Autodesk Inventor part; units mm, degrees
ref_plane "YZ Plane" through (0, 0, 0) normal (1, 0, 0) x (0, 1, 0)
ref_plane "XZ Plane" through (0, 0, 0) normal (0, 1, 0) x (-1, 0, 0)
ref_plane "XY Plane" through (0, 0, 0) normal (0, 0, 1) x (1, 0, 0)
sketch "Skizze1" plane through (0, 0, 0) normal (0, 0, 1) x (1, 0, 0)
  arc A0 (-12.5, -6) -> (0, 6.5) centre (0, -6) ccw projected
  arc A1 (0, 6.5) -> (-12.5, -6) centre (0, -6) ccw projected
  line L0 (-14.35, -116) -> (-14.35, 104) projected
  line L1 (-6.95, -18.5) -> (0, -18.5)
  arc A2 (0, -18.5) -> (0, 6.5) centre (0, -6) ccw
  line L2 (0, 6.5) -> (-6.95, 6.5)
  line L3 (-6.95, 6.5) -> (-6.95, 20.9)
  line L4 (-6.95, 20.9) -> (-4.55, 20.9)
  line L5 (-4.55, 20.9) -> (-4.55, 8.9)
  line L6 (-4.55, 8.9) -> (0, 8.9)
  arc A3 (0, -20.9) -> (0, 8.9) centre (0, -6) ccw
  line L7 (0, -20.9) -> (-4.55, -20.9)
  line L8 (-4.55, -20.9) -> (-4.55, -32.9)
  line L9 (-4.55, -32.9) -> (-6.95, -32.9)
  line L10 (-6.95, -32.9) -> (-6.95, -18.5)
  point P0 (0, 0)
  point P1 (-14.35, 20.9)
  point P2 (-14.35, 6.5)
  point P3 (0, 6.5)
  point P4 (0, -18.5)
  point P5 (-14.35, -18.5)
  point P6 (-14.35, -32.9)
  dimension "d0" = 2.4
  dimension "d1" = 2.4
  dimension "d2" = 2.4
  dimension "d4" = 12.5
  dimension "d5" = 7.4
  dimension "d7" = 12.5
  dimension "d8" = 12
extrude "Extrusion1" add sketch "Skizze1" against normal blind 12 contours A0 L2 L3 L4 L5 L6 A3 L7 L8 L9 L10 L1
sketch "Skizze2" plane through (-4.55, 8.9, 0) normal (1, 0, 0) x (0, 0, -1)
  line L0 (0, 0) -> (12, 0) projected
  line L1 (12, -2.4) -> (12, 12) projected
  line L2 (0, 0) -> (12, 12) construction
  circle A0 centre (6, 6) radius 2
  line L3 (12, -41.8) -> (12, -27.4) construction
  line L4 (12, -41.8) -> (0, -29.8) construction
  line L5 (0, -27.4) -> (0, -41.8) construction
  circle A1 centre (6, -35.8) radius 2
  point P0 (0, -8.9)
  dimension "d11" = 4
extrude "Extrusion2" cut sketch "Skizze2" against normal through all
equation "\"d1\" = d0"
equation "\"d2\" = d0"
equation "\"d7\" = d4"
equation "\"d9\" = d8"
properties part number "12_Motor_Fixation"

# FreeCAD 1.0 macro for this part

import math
import FreeCAD as App
import Part
import Sketcher
Q = App.Units.Quantity

doc = App.newDocument("Part")
params = doc.addObject("Spreadsheet::Sheet", "Params")
for row, (alias, value) in enumerate([
    ("sketch1_radius", "12.5 mm"),
    ("sketch1_height", "12 mm"),
    ("sketch1_width", "2.4 mm"),
    ("sketch1_radius2", "14.9 mm"),
    ("sketch1_width2", "6.95 mm"),
    ("pad1_length", "12 mm"),
    ("sketch2_diameter", "4 mm"),
], start=1):
    params.set(f"A{row}", alias)
    params.set(f"B{row}", "=" + value)
    params.setAlias(f"B{row}", alias)

body = doc.addObject("PartDesign::Body", "Body")

# Sketch on XY plane
sketch1 = doc.addObject("Sketcher::SketchObject", "Sketch")
body.addObject(sketch1)
sketch1.AttachmentSupport = (doc.XY_Plane, [""])
sketch1.MapMode = "FlatFace"
sketch1.addGeometry(Part.ArcOfCircle(Part.Circle(App.Vector(0, -6, 0), App.Vector(0, 0, 1), 12.5), math.radians(-90), math.radians(90)), False)
sketch1.addGeometry(Part.LineSegment(App.Vector(0, -18.5, 0), App.Vector(-7, -18.5, 0)), False)
sketch1.addGeometry(Part.LineSegment(App.Vector(-7, -18.5, 0), App.Vector(-7, -32.9, 0)), False)
sketch1.addGeometry(Part.LineSegment(App.Vector(-7, -32.9, 0), App.Vector(-4.5, -32.9, 0)), False)
sketch1.addGeometry(Part.LineSegment(App.Vector(-4.5, -32.9, 0), App.Vector(-4.5, -20.9, 0)), False)
sketch1.addGeometry(Part.LineSegment(App.Vector(-4.5, -20.9, 0), App.Vector(0, -20.9, 0)), False)
sketch1.addGeometry(Part.ArcOfCircle(Part.Circle(App.Vector(0, -6, 0), App.Vector(0, 0, 1), 14.9), math.radians(-90), math.radians(90)), False)
sketch1.addGeometry(Part.LineSegment(App.Vector(0, 8.9, 0), App.Vector(-4.5, 8.9, 0)), False)
sketch1.addGeometry(Part.LineSegment(App.Vector(-4.5, 8.9, 0), App.Vector(-4.5, 20.9, 0)), False)
sketch1.addGeometry(Part.LineSegment(App.Vector(-4.5, 20.9, 0), App.Vector(-7, 20.9, 0)), False)
sketch1.addGeometry(Part.LineSegment(App.Vector(-7, 20.9, 0), App.Vector(-7, 6.5, 0)), False)
sketch1.addGeometry(Part.LineSegment(App.Vector(-7, 6.5, 0), App.Vector(0, 6.5, 0)), False)
sketch1.addConstraint(Sketcher.Constraint("Tangent", 0, 1, 1, 1))
sketch1.addConstraint(Sketcher.Constraint("Coincident", 1, 2, 2, 1))
sketch1.addConstraint(Sketcher.Constraint("Coincident", 2, 2, 3, 1))
sketch1.addConstraint(Sketcher.Constraint("Coincident", 3, 2, 4, 1))
sketch1.addConstraint(Sketcher.Constraint("Coincident", 4, 2, 5, 1))
sketch1.addConstraint(Sketcher.Constraint("Tangent", 5, 2, 6, 1))
sketch1.addConstraint(Sketcher.Constraint("Tangent", 6, 2, 7, 1))
sketch1.addConstraint(Sketcher.Constraint("Coincident", 7, 2, 8, 1))
sketch1.addConstraint(Sketcher.Constraint("Coincident", 8, 2, 9, 1))
sketch1.addConstraint(Sketcher.Constraint("Coincident", 9, 2, 10, 1))
sketch1.addConstraint(Sketcher.Constraint("Coincident", 10, 2, 11, 1))
sketch1.addConstraint(Sketcher.Constraint("Tangent", 11, 2, 0, 2))
sketch1.addConstraint(Sketcher.Constraint("Horizontal", 1))
sketch1.addConstraint(Sketcher.Constraint("Vertical", 2))
sketch1.addConstraint(Sketcher.Constraint("Horizontal", 3))
sketch1.addConstraint(Sketcher.Constraint("Vertical", 4))
sketch1.addConstraint(Sketcher.Constraint("Horizontal", 5))
sketch1.addConstraint(Sketcher.Constraint("Horizontal", 7))
sketch1.addConstraint(Sketcher.Constraint("Vertical", 8))
sketch1.addConstraint(Sketcher.Constraint("Horizontal", 9))
sketch1.addConstraint(Sketcher.Constraint("Vertical", 10))
sketch1.addConstraint(Sketcher.Constraint("Horizontal", 11))
sketch1.addConstraint(Sketcher.Constraint("Coincident", 6, 3, 0, 3))
sketch1.addConstraint(Sketcher.Constraint("Symmetric", 4, 2, 8, 2, -1))
sketch1.addConstraint(Sketcher.Constraint("PointOnObject", 0, 3, -2))
sketch1.addConstraint(Sketcher.Constraint("Vertical", 2, 2, 9, 2))
sketch1.addConstraint(Sketcher.Constraint("Equal", 4, 8))
sketch1.addConstraint(Sketcher.Constraint("Radius", 0, Q("12.5 mm")))
sketch1.addConstraint(Sketcher.Constraint("DistanceY", 4, 1, 4, 2, Q("12 mm")))
sketch1.addConstraint(Sketcher.Constraint("DistanceX", 3, 1, 3, 2, Q("2.4 mm")))
sketch1.addConstraint(Sketcher.Constraint("Radius", 6, Q("14.9 mm")))
sketch1.addConstraint(Sketcher.Constraint("DistanceX", 1, 2, 1, 1, Q("6.95 mm")))
sketch1.setExpression("Constraints[27]", "Params.sketch1_radius")
sketch1.setExpression("Constraints[28]", "Params.sketch1_height")
sketch1.setExpression("Constraints[29]", "Params.sketch1_width")
sketch1.setExpression("Constraints[30]", "Params.sketch1_radius2")
sketch1.setExpression("Constraints[31]", "Params.sketch1_width2")
pad1 = doc.addObject("PartDesign::Pad", "Pad")
body.addObject(pad1)
pad1.Profile = sketch1
pad1.setExpression("Length", "Params.pad1_length")
pad1.Reversed = True

# Sketch on YZ plane
sketch2 = doc.addObject("Sketcher::SketchObject", "Sketch001")
body.addObject(sketch2)
sketch2.AttachmentSupport = (doc.YZ_Plane, [""])
sketch2.MapMode = "FlatFace"
sketch2.AttachmentOffset = App.Placement(App.Vector(0, 0, -4.55), App.Rotation())
sketch2.addGeometry(Part.Circle(App.Vector(14.9, -6, 0), App.Vector(0, 0, 1), 2), False)
sketch2.addGeometry(Part.Circle(App.Vector(-26.9, -6, 0), App.Vector(0, 0, 1), 2), False)
sketch2.addConstraint(Sketcher.Constraint("Equal", 0, 1))
sketch2.addConstraint(Sketcher.Constraint("Horizontal", 0, 3, 1, 3))
sketch2.addConstraint(Sketcher.Constraint("Diameter", 0, Q("4 mm")))
sketch2.addConstraint(Sketcher.Constraint("DistanceY", 0, 3, -1, 1, Q("6 mm")))
sketch2.addConstraint(Sketcher.Constraint("DistanceX", -1, 1, 0, 3, Q("14.9 mm")))
sketch2.addConstraint(Sketcher.Constraint("DistanceX", 1, 3, -1, 1, Q("26.9 mm")))
sketch2.setExpression("Constraints[2]", "Params.sketch2_diameter")
pocket1 = doc.addObject("PartDesign::Pocket", "Pocket")
body.addObject(pocket1)
pocket1.Profile = sketch2
pocket1.Type = "ThroughAll"

doc.recompute()
